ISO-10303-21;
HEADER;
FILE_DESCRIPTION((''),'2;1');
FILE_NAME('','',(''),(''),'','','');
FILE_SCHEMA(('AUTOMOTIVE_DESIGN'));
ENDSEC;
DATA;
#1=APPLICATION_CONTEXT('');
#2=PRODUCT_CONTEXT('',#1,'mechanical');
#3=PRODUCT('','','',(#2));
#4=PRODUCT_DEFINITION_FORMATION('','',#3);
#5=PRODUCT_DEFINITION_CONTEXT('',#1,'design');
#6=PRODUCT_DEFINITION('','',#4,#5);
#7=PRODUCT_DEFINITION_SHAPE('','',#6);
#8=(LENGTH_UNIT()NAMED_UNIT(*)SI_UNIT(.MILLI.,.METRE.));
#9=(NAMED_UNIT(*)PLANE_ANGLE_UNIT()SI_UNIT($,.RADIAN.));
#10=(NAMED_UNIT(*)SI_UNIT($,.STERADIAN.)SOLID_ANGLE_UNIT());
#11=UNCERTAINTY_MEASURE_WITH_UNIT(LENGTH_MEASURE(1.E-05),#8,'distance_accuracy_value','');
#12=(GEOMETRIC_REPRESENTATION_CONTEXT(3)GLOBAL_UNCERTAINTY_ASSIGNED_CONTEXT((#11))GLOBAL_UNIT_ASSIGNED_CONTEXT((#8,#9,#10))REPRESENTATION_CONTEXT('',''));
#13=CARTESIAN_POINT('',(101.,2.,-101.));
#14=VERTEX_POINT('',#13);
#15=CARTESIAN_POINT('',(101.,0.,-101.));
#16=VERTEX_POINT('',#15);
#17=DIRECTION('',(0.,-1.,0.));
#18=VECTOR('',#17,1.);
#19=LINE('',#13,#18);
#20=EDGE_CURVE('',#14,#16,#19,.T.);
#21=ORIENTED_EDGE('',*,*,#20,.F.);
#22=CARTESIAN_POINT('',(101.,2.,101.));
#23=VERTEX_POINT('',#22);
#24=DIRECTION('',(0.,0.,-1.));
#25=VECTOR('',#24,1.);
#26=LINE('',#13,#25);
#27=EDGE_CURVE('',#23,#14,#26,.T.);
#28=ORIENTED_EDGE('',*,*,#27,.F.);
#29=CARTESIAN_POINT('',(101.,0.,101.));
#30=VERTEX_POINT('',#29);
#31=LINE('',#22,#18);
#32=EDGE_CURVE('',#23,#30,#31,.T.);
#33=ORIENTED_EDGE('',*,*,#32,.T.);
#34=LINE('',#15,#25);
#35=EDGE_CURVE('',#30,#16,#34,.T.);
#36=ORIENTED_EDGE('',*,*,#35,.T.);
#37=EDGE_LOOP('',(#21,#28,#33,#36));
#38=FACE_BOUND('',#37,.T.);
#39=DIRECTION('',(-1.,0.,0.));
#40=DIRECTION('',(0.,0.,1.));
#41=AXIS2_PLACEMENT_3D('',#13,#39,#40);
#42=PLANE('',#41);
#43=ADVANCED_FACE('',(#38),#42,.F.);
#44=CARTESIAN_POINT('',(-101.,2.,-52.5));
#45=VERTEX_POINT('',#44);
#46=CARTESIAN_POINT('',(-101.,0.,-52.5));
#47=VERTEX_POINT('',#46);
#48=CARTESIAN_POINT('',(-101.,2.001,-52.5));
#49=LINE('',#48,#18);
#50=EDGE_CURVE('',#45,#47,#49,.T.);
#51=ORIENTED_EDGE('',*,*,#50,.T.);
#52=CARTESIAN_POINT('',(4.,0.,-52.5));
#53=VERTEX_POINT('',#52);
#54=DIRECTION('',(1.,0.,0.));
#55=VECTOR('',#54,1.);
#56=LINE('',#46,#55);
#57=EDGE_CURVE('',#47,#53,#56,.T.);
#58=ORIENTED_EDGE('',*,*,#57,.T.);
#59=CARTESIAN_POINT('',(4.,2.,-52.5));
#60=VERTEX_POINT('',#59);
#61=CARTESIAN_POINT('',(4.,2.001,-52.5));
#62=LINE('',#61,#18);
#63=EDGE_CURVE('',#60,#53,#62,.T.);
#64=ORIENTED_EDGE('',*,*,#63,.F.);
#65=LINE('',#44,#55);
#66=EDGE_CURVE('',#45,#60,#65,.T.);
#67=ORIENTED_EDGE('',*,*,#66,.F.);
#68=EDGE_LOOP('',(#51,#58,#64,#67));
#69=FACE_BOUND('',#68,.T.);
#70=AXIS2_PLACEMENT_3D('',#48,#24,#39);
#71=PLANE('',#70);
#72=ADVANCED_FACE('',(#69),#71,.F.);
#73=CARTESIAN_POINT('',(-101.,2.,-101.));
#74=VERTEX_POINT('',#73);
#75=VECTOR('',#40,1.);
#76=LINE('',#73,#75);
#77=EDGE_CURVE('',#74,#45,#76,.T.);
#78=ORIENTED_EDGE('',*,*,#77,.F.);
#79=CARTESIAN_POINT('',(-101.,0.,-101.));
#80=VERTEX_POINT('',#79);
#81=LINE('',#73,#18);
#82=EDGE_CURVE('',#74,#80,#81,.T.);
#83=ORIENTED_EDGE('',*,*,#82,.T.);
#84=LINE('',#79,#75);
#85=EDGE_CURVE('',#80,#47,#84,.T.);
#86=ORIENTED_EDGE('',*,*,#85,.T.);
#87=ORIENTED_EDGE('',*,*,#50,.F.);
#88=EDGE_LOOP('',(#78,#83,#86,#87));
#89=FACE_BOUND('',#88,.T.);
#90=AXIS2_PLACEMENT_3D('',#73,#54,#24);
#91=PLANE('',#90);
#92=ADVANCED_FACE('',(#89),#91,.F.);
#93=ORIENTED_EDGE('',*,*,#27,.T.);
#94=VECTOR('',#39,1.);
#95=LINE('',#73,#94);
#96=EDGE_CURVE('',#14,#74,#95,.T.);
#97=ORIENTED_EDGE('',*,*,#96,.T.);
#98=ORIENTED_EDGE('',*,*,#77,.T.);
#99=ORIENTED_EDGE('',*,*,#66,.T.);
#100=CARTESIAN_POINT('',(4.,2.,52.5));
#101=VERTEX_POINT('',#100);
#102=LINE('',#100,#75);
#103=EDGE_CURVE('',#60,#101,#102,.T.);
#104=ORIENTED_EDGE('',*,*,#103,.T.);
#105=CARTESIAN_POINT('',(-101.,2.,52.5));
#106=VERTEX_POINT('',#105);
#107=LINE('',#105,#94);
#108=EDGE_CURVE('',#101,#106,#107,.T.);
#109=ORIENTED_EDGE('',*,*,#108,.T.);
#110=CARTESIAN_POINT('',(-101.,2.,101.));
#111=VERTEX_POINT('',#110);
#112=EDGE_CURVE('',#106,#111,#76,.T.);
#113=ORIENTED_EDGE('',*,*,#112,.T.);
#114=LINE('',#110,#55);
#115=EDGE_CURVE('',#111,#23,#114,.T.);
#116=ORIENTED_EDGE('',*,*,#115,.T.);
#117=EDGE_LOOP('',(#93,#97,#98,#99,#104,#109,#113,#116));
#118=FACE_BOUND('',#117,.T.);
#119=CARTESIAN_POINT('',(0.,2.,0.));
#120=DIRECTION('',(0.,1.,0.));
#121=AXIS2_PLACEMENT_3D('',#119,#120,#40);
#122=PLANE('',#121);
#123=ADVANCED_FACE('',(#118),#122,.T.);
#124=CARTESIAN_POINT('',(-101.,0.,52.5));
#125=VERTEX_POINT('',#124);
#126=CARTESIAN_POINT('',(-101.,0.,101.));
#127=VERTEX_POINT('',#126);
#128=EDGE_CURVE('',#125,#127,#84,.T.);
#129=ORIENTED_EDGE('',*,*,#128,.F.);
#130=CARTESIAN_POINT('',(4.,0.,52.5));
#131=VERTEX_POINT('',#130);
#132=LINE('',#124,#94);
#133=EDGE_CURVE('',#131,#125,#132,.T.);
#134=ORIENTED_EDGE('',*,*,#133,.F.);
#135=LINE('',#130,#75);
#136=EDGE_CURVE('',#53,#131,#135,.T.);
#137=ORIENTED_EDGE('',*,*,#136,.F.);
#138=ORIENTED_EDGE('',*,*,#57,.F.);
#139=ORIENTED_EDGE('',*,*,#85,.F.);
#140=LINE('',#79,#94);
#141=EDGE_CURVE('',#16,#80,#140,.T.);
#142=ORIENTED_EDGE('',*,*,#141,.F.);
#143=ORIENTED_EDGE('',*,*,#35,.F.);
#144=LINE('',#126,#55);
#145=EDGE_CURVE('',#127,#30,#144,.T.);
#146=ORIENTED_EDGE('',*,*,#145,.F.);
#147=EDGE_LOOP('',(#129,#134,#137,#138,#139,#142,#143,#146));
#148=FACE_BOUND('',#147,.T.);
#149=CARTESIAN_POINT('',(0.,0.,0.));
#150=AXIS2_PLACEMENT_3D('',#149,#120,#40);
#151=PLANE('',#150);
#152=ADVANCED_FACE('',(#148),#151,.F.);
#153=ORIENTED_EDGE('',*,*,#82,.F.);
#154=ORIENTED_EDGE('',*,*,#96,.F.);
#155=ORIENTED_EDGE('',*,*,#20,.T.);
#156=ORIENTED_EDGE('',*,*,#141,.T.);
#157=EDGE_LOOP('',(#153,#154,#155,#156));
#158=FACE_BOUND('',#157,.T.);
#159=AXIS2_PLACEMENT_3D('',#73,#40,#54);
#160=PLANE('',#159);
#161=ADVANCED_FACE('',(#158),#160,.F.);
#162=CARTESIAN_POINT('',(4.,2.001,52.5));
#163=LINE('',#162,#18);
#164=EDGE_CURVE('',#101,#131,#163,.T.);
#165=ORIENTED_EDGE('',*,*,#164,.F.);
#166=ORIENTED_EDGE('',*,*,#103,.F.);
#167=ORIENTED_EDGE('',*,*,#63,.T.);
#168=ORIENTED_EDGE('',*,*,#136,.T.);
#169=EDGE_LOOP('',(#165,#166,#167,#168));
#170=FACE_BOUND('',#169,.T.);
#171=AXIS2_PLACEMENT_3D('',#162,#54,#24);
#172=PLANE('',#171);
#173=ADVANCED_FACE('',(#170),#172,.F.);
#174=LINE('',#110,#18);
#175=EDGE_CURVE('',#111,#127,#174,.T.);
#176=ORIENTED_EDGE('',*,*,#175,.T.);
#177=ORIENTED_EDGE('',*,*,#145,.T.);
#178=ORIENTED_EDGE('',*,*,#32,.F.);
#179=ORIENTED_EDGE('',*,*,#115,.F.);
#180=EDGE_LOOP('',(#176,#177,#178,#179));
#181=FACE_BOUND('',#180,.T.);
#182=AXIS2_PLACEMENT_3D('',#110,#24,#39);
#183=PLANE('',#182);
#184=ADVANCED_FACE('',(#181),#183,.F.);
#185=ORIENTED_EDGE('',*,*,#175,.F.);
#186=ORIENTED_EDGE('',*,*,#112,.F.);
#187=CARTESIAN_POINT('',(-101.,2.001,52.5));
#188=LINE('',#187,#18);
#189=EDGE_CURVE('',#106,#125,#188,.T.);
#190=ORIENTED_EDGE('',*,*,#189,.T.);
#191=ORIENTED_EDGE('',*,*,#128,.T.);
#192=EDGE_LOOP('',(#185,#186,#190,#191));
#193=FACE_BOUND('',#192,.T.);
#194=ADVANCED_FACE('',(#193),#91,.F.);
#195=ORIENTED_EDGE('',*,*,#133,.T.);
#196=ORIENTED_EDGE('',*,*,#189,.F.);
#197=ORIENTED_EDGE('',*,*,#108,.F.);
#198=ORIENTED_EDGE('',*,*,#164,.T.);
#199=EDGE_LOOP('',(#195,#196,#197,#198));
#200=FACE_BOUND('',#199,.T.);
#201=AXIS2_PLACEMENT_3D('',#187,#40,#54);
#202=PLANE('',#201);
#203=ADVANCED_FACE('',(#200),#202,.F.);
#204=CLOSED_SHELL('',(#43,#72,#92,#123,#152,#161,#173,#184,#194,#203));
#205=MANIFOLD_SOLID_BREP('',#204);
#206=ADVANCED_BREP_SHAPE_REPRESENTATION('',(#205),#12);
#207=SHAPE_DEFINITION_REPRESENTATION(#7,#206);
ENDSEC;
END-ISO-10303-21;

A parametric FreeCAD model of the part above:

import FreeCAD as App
import Part
import Sketcher
from FreeCAD import Vector


def add_polygon(sketch, points):
    """Adds a closed chain of lines whose ends are joined by coincident constraints."""
    first, n = sketch.GeometryCount, len(points)
    for a, b in zip(points, points[1:] + points[:1]):
        sketch.addGeometry(Part.LineSegment(App.Vector(*a, 0), App.Vector(*b, 0)), False)
    for i in range(n):
        sketch.addConstraint(Sketcher.Constraint("Coincident", first + i, 2, first + (i + 1) % n, 1))

doc = App.newDocument("Part")
body = doc.addObject("PartDesign::Body", "Body")

sketch1 = body.newObject("Sketcher::SketchObject", "Sketch")
sketch1.AttachmentSupport = (doc.getObject("XZ_Plane"), [""])
sketch1.MapMode = "FlatFace"
add_polygon(sketch1, [(-101, -101), (-101, 101), (101, 101), (101, -101)])
sketch1.addConstraint(Sketcher.Constraint("Vertical", 0))
sketch1.addConstraint(Sketcher.Constraint("Horizontal", 1))
sketch1.addConstraint(Sketcher.Constraint("Vertical", 2))
sketch1.addConstraint(Sketcher.Constraint("Horizontal", 3))
sketch1.addConstraint(Sketcher.Constraint("Symmetric", 0, 2, 2, 2, -1, 1))
sketch1.addConstraint(Sketcher.Constraint("Equal", 3, 0))
sketch1.addConstraint(Sketcher.Constraint("DistanceX", 1, 1, 1, 2, 202.0))
pad1 = body.newObject("PartDesign::Pad", "Pad")
pad1.Profile = sketch1
pad1.Length = 2
pad1.Reversed = True

sketch2 = body.newObject("Sketcher::SketchObject", "Sketch001")
sketch2.AttachmentSupport = (doc.getObject("XZ_Plane"), [""])
sketch2.MapMode = "FlatFace"
add_polygon(sketch2, [(-101, 52), (-101, -52), (4, -52), (4, 52)])
sketch2.addConstraint(Sketcher.Constraint("Vertical", 0))
sketch2.addConstraint(Sketcher.Constraint("Horizontal", 1))
sketch2.addConstraint(Sketcher.Constraint("Vertical", 2))
sketch2.addConstraint(Sketcher.Constraint("Horizontal", 3))
sketch2.addConstraint(Sketcher.Constraint("Equal", 3, 0))
sketch2.addConstraint(Sketcher.Constraint("DistanceX", 1, 1, 1, 2, 105.0))
sketch2.addConstraint(Sketcher.Constraint("DistanceX", 0, 2, -1, 1, 101.0))
sketch2.addConstraint(Sketcher.Constraint("DistanceY", 0, 2, -1, 1, 52.5))
pocket1 = body.newObject("PartDesign::Pocket", "Pocket")
pocket1.Profile = sketch2
pocket1.Type = "UpToFirst"

doc.recompute()
